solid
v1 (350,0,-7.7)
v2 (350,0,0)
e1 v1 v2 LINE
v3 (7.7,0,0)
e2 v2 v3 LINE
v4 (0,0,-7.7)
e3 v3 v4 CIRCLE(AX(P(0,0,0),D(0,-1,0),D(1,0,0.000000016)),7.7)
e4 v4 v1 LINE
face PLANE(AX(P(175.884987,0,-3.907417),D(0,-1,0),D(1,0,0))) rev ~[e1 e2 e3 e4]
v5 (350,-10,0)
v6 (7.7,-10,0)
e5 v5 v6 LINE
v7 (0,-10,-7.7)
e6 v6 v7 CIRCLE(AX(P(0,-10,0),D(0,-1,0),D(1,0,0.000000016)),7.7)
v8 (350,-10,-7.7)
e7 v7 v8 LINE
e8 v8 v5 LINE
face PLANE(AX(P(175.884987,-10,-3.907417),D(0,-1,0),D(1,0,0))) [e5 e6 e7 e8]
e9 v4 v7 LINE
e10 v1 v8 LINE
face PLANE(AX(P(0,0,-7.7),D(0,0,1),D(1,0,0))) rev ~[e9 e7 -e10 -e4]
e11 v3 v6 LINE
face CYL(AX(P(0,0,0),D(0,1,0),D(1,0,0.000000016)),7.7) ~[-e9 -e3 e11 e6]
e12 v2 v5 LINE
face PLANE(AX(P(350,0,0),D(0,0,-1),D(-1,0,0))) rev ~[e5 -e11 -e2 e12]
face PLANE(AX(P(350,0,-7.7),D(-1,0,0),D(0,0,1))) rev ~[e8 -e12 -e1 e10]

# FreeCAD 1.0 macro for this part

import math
import FreeCAD as App
import Part
import Sketcher

doc = App.newDocument("Part")
body = doc.addObject("PartDesign::Body", "Body")

# Sketch on XZ plane
sketch1 = body.newObject("Sketcher::SketchObject", "Sketch")
sketch1.AttachmentSupport = (doc.getObject("XZ_Plane"), [""])
sketch1.MapMode = "FlatFace"
sketch1.addGeometry([
    Part.LineSegment(App.Vector(350, 0, 0), App.Vector(7.7, 0, 0)),
    Part.ArcOfCircle(Part.Circle(App.Vector(0, 0, 0), App.Vector(0, 0, 1), 7.7), math.radians(0.000001), math.radians(269.999999)),
    Part.LineSegment(App.Vector(0, -7.7, 0), App.Vector(350, -7.7, 0)),
    Part.LineSegment(App.Vector(350, -7.7, 0), App.Vector(350, 0, 0)),
], False)
sketch1.addConstraint([
    Sketcher.Constraint("Coincident", 0, 2, 1, 1),
    Sketcher.Constraint("Tangent", 1, 2, 2, 1),
    Sketcher.Constraint("Coincident", 2, 2, 3, 1),
    Sketcher.Constraint("Coincident", 3, 2, 0, 1),
    Sketcher.Constraint("Horizontal", 0),
    Sketcher.Constraint("Horizontal", 2),
    Sketcher.Constraint("Vertical", 3),
    Sketcher.Constraint("Coincident", 1, 3, -1, 1),
    Sketcher.Constraint("PointOnObject", 0, 2, -1),
    Sketcher.Constraint("Radius", 1, 7.7),
    Sketcher.Constraint("DistanceX", 2, 1, 2, 2, 350.0),
])
pad1 = body.newObject("PartDesign::Pad", "Pad")
pad1.Profile = sketch1
pad1.Length = 10

doc.recompute()
